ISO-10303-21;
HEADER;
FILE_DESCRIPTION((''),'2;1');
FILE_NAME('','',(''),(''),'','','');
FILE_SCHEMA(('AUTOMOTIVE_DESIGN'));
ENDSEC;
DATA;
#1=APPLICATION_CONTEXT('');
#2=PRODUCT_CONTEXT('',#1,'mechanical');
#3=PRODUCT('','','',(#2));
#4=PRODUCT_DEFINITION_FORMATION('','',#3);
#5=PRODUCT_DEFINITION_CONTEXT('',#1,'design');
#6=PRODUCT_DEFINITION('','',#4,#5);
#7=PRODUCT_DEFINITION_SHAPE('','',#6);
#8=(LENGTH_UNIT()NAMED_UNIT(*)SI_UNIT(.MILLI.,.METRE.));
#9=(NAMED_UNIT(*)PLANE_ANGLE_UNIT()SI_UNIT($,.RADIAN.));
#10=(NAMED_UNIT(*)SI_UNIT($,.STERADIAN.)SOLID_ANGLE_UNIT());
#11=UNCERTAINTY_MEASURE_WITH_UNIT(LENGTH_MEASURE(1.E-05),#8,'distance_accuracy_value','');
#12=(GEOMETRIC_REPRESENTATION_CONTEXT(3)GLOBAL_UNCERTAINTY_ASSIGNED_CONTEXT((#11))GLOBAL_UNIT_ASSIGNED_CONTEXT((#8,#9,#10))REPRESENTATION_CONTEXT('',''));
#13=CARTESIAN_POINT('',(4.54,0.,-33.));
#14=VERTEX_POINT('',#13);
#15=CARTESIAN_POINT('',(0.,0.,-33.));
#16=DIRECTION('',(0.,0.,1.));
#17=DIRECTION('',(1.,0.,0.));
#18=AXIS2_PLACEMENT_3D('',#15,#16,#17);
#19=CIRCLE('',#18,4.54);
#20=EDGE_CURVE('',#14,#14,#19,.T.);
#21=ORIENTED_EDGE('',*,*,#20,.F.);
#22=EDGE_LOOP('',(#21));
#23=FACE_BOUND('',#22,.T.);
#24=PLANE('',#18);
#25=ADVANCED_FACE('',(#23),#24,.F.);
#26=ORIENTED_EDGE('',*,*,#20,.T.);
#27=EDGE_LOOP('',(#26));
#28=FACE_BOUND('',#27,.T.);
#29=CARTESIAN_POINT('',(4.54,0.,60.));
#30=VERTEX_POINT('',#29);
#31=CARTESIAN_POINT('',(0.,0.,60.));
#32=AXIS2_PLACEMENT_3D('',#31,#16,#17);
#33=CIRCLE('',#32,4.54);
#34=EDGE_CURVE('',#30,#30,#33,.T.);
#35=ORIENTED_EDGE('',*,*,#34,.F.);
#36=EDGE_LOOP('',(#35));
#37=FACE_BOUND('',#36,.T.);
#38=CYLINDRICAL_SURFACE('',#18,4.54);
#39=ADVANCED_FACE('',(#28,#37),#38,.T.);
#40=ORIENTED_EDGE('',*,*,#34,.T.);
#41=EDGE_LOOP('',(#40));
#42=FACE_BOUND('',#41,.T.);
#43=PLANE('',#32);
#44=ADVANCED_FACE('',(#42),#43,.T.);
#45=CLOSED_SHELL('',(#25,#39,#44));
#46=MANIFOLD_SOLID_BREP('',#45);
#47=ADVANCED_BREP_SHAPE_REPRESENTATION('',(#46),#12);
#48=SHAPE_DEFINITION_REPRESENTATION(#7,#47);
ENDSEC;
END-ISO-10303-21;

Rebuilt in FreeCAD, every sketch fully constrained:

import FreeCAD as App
import Part
import Sketcher
from FreeCAD import Vector

doc = App.newDocument("Part")
body = doc.addObject("PartDesign::Body", "Body")

sketch1 = body.newObject("Sketcher::SketchObject", "Sketch")
sketch1.AttachmentSupport = (doc.getObject("XY_Plane"), [""])
sketch1.MapMode = "FlatFace"
sketch1.addGeometry(Part.Circle(Vector(0, 0, 0), Vector(0, 0, 1), 4.5), False)
sketch1.addConstraint([
    Sketcher.Constraint("Coincident", 0, 3, -1, 1),
    Sketcher.Constraint("Diameter", 0, 9.08),
])
pad1 = body.newObject("PartDesign::Pad", "Pad")
pad1.Profile = sketch1
pad1.Type = "TwoLengths"
pad1.Length = 60
pad1.Length2 = 33

doc.recompute()
